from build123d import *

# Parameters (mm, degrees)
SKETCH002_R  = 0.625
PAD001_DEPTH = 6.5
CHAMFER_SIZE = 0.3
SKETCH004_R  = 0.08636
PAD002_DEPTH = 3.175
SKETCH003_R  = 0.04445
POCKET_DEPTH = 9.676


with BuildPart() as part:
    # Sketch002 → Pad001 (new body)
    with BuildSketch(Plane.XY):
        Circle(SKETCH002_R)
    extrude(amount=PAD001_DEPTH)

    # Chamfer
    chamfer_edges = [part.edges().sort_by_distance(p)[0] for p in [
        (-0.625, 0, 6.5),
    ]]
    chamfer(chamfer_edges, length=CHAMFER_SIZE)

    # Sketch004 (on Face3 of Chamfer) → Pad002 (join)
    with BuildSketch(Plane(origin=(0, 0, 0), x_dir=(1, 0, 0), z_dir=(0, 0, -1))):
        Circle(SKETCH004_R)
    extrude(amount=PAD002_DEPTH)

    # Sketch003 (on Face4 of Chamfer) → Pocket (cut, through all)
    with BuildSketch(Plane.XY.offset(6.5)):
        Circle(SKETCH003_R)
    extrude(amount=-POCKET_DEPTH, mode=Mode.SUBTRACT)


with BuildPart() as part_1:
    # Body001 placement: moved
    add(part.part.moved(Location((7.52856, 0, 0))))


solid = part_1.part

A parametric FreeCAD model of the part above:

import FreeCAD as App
import Part
import Sketcher


def edges_at(feature, points):
    """Names of the edges that pass closest to the given points."""
    edges = feature.Shape.Edges
    near = lambda p: min(range(len(edges)), key=lambda i: edges[i].distToShape(Part.Vertex(*p))[0])
    return sorted({f"Edge{near(p) + 1}" for p in points})

doc = App.newDocument("Part")
body = doc.addObject("PartDesign::Body", "Body")

# Sketch on XY plane
sketch1 = doc.addObject("Sketcher::SketchObject", "Sketch")
body.addObject(sketch1)
sketch1.AttachmentSupport = (doc.XY_Plane, [""])
sketch1.MapMode = "FlatFace"
sketch1.addGeometry(Part.Circle(App.Vector(0, 0, 0), App.Vector(0, 0, 1), 0.625), False)
sketch1.addConstraint(Sketcher.Constraint("Coincident", 0, 3, -1, 1))
sketch1.addConstraint(Sketcher.Constraint("Diameter", 0, 1.25))
pad1 = doc.addObject("PartDesign::Pad", "Pad")
body.addObject(pad1)
pad1.Profile = sketch1
pad1.Length = 6.5
doc.recompute()

chamfer = doc.addObject("PartDesign::Chamfer", "Chamfer")
body.addObject(chamfer)
chamfer.Base = (pad1, edges_at(pad1, [(-0.625, 0, 6.5)]))
chamfer.Size = 0.3

# Sketch on XY plane
sketch2 = doc.addObject("Sketcher::SketchObject", "Sketch001")
body.addObject(sketch2)
sketch2.AttachmentSupport = (doc.XY_Plane, [""])
sketch2.MapMode = "FlatFace"
sketch2.addGeometry(Part.Circle(App.Vector(0, 0, 0), App.Vector(0, 0, 1), 0.08636), False)
sketch2.addConstraint(Sketcher.Constraint("Coincident", 0, 3, -1, 1))
sketch2.addConstraint(Sketcher.Constraint("Diameter", 0, 0.17272))
pad2 = doc.addObject("PartDesign::Pad", "Pad001")
body.addObject(pad2)
pad2.Profile = sketch2
pad2.Length = 3.175
pad2.Reversed = True

# Sketch on XY plane
sketch3 = doc.addObject("Sketcher::SketchObject", "Sketch002")
body.addObject(sketch3)
sketch3.AttachmentSupport = (doc.XY_Plane, [""])
sketch3.MapMode = "FlatFace"
sketch3.AttachmentOffset = App.Placement(App.Vector(0, 0, 6.5), App.Rotation())
sketch3.addGeometry(Part.Circle(App.Vector(0, 0, 0), App.Vector(0, 0, 1), 0.04445), False)
sketch3.addConstraint(Sketcher.Constraint("Coincident", 0, 3, -1, 1))
sketch3.addConstraint(Sketcher.Constraint("Diameter", 0, 0.0889))
pocket1 = doc.addObject("PartDesign::Pocket", "Pocket")
body.addObject(pocket1)
pocket1.Profile = sketch3
pocket1.Type = "ThroughAll"
body2 = doc.addObject("PartDesign::Body", "Body001")
doc.recompute()

body.Placement = App.Placement(App.Vector(7.52856, 0, 0), App.Rotation(App.Vector(0, 0, 1), 0))
boolean = doc.addObject("PartDesign::Boolean", "Boolean")
body2.addObject(boolean)
boolean.Type = "Fuse"
boolean.addObjects([body])

doc.recompute()
